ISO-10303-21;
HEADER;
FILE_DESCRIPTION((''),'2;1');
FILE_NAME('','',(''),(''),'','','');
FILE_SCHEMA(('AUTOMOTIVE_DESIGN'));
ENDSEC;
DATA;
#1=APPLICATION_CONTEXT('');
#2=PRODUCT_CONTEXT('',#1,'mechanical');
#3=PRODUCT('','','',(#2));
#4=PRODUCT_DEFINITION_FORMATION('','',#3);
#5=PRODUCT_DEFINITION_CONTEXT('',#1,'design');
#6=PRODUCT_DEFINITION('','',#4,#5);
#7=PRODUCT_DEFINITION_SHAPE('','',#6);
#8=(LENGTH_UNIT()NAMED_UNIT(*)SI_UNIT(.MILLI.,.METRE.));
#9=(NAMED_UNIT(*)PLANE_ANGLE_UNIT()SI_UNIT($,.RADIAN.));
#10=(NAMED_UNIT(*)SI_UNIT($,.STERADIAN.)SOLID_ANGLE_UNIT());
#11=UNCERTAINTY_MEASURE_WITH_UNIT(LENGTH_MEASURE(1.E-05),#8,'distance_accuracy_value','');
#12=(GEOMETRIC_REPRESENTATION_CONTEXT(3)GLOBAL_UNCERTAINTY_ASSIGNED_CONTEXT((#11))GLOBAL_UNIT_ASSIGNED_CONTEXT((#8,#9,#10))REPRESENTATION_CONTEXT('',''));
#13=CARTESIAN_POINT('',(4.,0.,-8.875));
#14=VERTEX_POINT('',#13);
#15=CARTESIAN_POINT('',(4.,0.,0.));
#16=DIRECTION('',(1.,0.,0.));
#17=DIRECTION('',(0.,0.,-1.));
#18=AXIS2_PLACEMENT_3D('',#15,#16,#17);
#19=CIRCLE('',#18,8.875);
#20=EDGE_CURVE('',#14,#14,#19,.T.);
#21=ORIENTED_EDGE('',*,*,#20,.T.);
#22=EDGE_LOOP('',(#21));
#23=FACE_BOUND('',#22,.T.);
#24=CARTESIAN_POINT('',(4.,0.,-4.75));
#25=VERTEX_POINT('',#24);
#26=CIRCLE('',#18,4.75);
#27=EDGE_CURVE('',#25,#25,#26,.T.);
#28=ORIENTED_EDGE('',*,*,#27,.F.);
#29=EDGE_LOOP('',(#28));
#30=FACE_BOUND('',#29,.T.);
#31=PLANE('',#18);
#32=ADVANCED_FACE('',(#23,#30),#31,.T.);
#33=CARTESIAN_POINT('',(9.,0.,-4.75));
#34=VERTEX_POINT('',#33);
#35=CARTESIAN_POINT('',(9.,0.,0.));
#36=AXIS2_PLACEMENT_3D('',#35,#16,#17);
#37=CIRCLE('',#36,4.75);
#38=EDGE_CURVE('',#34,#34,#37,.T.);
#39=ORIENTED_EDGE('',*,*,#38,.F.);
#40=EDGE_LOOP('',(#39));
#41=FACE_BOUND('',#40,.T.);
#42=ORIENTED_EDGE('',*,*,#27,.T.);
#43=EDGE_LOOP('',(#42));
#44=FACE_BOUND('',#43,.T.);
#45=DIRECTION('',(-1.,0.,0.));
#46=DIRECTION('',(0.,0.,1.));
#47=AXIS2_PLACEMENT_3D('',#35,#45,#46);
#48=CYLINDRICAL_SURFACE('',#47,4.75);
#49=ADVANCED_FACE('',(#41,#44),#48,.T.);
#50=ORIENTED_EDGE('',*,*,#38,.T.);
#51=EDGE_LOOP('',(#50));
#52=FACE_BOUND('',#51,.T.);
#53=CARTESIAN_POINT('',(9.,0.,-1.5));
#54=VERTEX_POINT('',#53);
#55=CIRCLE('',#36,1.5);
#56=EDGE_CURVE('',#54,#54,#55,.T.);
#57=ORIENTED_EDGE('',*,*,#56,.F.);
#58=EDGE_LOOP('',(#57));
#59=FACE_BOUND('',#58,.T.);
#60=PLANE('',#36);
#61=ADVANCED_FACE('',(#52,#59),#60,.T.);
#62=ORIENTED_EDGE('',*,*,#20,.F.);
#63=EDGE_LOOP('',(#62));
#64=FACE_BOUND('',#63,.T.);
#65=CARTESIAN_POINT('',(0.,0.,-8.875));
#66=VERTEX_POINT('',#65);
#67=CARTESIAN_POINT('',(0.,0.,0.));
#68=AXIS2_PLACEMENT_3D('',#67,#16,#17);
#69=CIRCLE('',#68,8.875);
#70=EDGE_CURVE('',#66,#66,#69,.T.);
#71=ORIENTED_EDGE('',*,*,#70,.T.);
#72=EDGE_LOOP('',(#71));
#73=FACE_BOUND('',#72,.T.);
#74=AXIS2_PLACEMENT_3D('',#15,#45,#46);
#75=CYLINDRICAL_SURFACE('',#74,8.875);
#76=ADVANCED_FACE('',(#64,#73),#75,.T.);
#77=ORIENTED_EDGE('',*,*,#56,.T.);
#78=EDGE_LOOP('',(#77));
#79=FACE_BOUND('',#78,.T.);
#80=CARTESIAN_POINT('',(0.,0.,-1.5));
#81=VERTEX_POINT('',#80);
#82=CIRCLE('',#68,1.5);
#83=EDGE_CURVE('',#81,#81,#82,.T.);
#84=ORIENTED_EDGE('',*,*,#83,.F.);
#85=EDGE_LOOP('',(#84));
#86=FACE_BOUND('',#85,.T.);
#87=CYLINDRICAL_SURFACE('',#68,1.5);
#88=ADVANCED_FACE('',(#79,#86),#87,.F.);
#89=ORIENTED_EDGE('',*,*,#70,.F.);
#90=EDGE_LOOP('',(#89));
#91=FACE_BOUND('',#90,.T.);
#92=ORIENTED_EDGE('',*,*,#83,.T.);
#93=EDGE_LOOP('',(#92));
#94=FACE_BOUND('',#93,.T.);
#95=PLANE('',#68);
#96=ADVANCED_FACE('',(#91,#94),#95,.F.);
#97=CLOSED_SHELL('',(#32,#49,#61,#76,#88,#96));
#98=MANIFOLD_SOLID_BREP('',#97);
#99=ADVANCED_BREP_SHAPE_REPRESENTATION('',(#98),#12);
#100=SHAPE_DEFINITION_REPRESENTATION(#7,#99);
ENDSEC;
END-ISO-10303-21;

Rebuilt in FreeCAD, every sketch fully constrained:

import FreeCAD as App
import Part
import Sketcher

V = App.Vector

doc = App.newDocument("Part")
body = doc.addObject("PartDesign::Body", "Body")

sketch1 = doc.addObject("Sketcher::SketchObject", "Sketch")
body.addObject(sketch1)
sketch1.AttachmentSupport = (doc.YZ_Plane, [""])
sketch1.MapMode = "FlatFace"
sketch1.addGeometry(Part.Circle(V(0, 0, 0), V(0, 0, 1), 9), False)
sketch1.addConstraint([
    Sketcher.Constraint("Coincident", 0, 3, -1, 1),
    Sketcher.Constraint("Diameter", 0, 17.75),
])
pad1 = doc.addObject("PartDesign::Pad", "Pad")
body.addObject(pad1)
pad1.Profile = sketch1
pad1.Length = 4

sketch2 = doc.addObject("Sketcher::SketchObject", "Sketch001")
body.addObject(sketch2)
sketch2.AttachmentSupport = (doc.YZ_Plane, [""])
sketch2.MapMode = "FlatFace"
sketch2.AttachmentOffset = App.Placement(V(0, 0, 4), App.Rotation())
sketch2.addGeometry(Part.Circle(V(0, 0, 0), V(0, 0, 1), 4.8), False)
sketch2.addConstraint([
    Sketcher.Constraint("Coincident", 0, 3, -1, 1),
    Sketcher.Constraint("Diameter", 0, 9.5),
])
pad2 = doc.addObject("PartDesign::Pad", "Pad001")
body.addObject(pad2)
pad2.Profile = sketch2
pad2.Length = 5

sketch3 = doc.addObject("Sketcher::SketchObject", "Sketch002")
body.addObject(sketch3)
sketch3.AttachmentSupport = (doc.YZ_Plane, [""])
sketch3.MapMode = "FlatFace"
sketch3.AttachmentOffset = App.Placement(V(0, 0, 9), App.Rotation())
sketch3.addGeometry(Part.Circle(V(0, 0, 0), V(0, 0, 1), 1.5), False)
sketch3.addConstraint([
    Sketcher.Constraint("Coincident", 0, 3, -1, 1),
    Sketcher.Constraint("Diameter", 0, 3.0),
])
pocket1 = doc.addObject("PartDesign::Pocket", "Pocket")
body.addObject(pocket1)
pocket1.Profile = sketch3
pocket1.Type = "ThroughAll"

doc.recompute()
